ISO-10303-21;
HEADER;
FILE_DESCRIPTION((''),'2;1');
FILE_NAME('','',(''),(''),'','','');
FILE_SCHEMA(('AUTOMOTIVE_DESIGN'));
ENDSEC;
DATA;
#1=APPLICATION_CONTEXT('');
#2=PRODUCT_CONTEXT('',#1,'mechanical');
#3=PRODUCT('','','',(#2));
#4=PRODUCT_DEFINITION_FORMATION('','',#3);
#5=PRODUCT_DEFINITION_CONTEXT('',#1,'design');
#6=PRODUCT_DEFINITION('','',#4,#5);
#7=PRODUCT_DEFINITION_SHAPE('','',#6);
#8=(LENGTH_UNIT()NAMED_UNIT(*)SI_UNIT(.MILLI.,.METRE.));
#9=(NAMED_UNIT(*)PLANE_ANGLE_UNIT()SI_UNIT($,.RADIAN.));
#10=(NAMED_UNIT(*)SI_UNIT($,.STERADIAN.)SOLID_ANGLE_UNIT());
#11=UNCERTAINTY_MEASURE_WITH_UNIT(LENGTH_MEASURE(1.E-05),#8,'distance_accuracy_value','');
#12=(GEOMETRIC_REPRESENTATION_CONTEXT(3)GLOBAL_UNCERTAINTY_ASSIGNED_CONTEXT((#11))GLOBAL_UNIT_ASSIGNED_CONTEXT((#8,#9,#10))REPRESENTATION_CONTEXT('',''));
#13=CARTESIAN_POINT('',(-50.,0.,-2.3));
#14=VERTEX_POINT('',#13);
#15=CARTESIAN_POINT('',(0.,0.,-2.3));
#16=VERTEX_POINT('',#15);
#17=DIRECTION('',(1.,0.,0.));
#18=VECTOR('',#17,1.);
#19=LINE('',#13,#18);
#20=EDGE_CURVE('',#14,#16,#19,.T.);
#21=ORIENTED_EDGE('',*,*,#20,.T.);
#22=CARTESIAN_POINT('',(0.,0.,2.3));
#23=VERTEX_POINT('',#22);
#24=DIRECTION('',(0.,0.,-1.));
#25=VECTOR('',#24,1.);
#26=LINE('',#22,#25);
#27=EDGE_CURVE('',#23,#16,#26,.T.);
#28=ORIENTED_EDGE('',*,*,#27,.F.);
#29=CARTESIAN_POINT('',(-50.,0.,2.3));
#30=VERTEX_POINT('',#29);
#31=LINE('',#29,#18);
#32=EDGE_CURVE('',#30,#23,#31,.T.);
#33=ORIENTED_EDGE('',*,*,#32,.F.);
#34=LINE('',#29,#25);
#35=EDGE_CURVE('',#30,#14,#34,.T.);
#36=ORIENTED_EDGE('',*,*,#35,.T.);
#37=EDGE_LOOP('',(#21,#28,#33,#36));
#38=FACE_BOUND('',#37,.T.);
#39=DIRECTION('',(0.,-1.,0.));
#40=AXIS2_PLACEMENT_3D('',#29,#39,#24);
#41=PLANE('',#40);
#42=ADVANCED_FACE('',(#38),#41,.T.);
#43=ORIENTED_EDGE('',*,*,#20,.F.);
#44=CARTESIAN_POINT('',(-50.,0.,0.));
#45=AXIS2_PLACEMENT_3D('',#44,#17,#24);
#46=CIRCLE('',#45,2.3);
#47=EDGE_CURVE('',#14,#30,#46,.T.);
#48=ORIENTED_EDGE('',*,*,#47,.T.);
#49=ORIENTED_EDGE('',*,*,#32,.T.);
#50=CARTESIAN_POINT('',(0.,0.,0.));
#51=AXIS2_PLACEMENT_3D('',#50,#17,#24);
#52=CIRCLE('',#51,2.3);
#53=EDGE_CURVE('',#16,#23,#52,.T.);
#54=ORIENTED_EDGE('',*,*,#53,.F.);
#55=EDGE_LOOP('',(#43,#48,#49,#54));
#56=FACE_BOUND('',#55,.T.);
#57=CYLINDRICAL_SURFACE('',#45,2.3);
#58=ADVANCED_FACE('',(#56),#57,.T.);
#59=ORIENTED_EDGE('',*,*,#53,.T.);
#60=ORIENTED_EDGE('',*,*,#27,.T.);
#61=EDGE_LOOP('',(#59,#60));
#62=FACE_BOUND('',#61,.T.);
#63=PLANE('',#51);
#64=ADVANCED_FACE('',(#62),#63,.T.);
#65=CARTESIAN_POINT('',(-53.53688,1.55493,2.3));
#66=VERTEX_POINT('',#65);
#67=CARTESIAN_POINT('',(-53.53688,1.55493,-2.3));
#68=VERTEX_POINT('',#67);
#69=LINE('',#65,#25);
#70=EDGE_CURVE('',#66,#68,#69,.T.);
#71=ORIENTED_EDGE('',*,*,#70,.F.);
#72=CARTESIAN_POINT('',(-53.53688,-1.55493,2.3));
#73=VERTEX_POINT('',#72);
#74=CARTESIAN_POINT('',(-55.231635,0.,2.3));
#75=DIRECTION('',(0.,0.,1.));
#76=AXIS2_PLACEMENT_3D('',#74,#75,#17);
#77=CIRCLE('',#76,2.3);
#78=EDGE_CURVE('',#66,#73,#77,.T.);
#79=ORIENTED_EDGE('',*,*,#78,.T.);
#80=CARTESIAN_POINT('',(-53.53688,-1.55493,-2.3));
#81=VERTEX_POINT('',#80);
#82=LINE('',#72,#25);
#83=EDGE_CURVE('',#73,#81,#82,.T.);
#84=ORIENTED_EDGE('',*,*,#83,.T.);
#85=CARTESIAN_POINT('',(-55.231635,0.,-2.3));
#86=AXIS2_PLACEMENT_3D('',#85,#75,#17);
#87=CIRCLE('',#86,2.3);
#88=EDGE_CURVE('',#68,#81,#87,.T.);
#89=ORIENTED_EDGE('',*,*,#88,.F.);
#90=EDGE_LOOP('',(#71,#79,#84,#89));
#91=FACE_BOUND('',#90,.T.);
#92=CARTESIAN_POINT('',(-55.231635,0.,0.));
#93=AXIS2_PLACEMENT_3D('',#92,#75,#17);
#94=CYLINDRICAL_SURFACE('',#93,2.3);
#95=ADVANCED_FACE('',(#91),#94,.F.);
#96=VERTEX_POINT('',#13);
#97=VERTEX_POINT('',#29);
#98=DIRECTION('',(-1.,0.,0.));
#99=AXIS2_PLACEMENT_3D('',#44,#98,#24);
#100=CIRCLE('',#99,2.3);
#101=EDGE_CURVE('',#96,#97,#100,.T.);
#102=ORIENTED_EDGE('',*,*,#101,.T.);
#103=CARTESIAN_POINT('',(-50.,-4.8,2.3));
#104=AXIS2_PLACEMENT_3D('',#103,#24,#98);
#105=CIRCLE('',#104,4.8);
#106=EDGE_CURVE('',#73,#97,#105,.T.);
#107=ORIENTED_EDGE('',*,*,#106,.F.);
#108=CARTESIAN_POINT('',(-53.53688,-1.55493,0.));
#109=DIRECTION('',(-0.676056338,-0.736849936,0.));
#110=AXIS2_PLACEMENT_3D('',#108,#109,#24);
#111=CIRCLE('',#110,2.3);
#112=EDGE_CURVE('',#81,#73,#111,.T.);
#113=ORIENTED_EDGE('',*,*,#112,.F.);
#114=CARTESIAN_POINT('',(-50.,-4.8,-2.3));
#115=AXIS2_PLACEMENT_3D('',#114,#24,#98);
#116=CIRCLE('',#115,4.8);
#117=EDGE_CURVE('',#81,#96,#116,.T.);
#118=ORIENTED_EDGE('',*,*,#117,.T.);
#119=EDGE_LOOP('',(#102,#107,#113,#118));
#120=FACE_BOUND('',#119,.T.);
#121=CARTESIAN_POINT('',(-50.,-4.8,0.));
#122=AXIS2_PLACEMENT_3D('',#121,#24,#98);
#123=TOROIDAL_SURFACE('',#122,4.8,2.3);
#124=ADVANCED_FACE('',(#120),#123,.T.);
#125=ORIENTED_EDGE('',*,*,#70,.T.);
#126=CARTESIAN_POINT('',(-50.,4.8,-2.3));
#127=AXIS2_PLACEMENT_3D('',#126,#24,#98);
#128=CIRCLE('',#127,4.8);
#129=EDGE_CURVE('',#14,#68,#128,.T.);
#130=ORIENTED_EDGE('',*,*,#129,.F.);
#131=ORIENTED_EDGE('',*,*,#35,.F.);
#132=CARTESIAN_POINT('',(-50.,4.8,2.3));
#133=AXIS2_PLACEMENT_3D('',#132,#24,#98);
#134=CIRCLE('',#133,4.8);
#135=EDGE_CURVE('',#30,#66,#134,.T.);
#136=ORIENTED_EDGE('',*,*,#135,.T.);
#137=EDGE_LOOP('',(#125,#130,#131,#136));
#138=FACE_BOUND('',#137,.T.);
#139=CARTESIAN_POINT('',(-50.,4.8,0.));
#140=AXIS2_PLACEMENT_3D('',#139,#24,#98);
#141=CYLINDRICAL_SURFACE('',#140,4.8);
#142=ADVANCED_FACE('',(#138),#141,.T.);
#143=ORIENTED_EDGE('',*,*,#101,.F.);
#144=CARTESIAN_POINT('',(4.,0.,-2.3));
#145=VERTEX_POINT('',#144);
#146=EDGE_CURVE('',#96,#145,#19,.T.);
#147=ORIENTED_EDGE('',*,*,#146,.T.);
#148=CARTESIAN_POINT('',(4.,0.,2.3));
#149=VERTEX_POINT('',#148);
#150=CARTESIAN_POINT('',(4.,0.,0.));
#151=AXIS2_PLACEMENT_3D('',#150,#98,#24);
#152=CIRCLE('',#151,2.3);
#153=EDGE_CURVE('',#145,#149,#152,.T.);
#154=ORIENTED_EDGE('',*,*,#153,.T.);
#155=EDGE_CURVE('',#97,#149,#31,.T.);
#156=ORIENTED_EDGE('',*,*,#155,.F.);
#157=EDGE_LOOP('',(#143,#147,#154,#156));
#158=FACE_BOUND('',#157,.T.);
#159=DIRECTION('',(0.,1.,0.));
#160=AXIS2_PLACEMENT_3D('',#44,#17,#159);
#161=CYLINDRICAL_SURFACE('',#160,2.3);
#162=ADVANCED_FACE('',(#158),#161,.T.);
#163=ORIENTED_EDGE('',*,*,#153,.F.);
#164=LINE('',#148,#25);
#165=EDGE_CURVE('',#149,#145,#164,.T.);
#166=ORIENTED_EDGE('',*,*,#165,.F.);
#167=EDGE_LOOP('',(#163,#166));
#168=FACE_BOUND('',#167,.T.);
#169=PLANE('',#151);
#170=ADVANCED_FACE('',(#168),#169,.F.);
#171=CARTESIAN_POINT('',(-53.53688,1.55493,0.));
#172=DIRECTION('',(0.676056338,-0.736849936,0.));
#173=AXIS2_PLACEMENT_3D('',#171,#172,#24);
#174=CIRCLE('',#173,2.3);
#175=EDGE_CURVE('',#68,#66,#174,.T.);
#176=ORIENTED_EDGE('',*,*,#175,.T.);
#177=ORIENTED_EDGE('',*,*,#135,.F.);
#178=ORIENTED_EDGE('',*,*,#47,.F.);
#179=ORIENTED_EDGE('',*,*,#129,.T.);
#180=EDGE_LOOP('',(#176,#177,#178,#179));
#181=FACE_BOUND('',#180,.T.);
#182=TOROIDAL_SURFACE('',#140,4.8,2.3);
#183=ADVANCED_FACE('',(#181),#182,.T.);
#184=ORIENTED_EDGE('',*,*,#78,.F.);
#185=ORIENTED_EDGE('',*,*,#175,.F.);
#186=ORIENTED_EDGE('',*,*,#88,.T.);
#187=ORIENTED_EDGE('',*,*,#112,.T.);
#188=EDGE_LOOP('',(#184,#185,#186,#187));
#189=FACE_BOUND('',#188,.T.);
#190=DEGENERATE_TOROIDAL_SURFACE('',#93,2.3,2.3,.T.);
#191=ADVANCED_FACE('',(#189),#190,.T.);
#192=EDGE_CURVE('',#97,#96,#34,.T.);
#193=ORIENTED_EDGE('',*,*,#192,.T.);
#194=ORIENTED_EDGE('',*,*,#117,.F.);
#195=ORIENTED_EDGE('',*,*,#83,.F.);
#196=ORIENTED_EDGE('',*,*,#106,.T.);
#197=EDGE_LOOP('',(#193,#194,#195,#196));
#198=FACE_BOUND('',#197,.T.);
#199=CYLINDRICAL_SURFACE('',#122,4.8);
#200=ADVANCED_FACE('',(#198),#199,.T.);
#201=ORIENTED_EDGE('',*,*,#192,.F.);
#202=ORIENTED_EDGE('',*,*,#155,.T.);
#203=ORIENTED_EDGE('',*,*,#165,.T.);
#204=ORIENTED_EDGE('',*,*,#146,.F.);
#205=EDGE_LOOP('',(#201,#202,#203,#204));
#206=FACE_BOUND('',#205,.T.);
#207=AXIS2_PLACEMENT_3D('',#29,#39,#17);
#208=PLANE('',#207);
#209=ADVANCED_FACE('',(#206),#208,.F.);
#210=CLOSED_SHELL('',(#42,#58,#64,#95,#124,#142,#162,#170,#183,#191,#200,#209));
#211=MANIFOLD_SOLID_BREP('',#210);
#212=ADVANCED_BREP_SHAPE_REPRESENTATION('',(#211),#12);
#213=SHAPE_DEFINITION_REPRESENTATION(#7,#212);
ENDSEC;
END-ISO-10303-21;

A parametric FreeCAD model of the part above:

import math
import FreeCAD as App
import Part
import Sketcher
from FreeCAD import Vector
Q = App.Units.Quantity

doc = App.newDocument("Part")
body = doc.addObject("PartDesign::Body", "Body")

# Sketch on YZ plane
sketch1 = body.newObject("Sketcher::SketchObject", "Sketch")
sketch1.AttachmentSupport = (doc.getObject("YZ_Plane"), [""])
sketch1.MapMode = "FlatFace"
sketch1.addGeometry([
    Part.LineSegment(Vector(0, 2.3, 0), Vector(0, -2.3, 0)),
    Part.ArcOfCircle(Part.Circle(Vector(0, 0, 0), Vector(0, 0, 1), 2.3), math.radians(-90), math.radians(90)),
], False)
sketch1.addConstraint([
    Sketcher.Constraint("Coincident", 0, 1, 1, 2),
    Sketcher.Constraint("Coincident", 1, 1, 0, 2),
    Sketcher.Constraint("Vertical", 0),
    Sketcher.Constraint("Coincident", 1, 3, -1, 1),
    Sketcher.Constraint("PointOnObject", 0, 1, -2),
    Sketcher.Constraint("Radius", 1, Q("2.3 mm")),
])

# Sketch on XY plane
sketch2 = body.newObject("Sketcher::SketchObject", "Sketch001")
sketch2.AttachmentSupport = (doc.getObject("XY_Plane"), [""])
sketch2.MapMode = "FlatFace"
sketch2.addGeometry([
    Part.LineSegment(Vector(0, 2.3, 0), Vector(-50, 2.3, 0)),  # 0
    Part.ArcOfCircle(Part.Circle(Vector(-50, 4.8, 0), Vector(0, 0, 1), 2.5), math.radians(-137), math.radians(-90)),  # 1
    Part.ArcOfCircle(Part.Circle(Vector(-55.2, 0, 0), Vector(0, 0, 1), 4.6), math.radians(43), math.radians(317)),  # 2
    Part.ArcOfCircle(Part.Circle(Vector(-50, -4.8, 0), Vector(0, 0, 1), 2.5), math.radians(90), math.radians(137)),  # 3
    Part.LineSegment(Vector(-50, -2.3, 0), Vector(4, -2.3, 0)),  # 4
], False)
sketch2.addConstraint([
    Sketcher.Constraint("Tangent", 0, 2, 1, 2),
    Sketcher.Constraint("Tangent", 1, 1, 2, 1),
    Sketcher.Constraint("Tangent", 2, 2, 3, 2),
    Sketcher.Constraint("Tangent", 3, 1, 4, 1),
    Sketcher.Constraint("Horizontal", 0),
    Sketcher.Constraint("Horizontal", 4),
    Sketcher.Constraint("Equal", 1, 3),
    Sketcher.Constraint("Symmetric", 1, 3, 3, 3, -1),
    Sketcher.Constraint("PointOnObject", 0, 1, -2),
    Sketcher.Constraint("Radius", 1, Q("2.5 mm")),
    Sketcher.Constraint("Radius", 2, Q("4.6 mm")),
    Sketcher.Constraint("DistanceX", 0, 2, 0, 1, Q("50 mm")),
    Sketcher.Constraint("DistanceX", 4, 1, 4, 2, Q("54 mm")),
    Sketcher.Constraint("DistanceY", -1, 1, 1, 3, Q("4.8 mm")),
])
doc.recompute()

additivepipe = body.newObject("PartDesign::AdditivePipe", "AdditivePipe")
additivepipe.Profile = sketch1
additivepipe.Spine = (sketch2, ["Edge1", "Edge2", "Edge3", "Edge4", "Edge5"])

doc.recompute()
